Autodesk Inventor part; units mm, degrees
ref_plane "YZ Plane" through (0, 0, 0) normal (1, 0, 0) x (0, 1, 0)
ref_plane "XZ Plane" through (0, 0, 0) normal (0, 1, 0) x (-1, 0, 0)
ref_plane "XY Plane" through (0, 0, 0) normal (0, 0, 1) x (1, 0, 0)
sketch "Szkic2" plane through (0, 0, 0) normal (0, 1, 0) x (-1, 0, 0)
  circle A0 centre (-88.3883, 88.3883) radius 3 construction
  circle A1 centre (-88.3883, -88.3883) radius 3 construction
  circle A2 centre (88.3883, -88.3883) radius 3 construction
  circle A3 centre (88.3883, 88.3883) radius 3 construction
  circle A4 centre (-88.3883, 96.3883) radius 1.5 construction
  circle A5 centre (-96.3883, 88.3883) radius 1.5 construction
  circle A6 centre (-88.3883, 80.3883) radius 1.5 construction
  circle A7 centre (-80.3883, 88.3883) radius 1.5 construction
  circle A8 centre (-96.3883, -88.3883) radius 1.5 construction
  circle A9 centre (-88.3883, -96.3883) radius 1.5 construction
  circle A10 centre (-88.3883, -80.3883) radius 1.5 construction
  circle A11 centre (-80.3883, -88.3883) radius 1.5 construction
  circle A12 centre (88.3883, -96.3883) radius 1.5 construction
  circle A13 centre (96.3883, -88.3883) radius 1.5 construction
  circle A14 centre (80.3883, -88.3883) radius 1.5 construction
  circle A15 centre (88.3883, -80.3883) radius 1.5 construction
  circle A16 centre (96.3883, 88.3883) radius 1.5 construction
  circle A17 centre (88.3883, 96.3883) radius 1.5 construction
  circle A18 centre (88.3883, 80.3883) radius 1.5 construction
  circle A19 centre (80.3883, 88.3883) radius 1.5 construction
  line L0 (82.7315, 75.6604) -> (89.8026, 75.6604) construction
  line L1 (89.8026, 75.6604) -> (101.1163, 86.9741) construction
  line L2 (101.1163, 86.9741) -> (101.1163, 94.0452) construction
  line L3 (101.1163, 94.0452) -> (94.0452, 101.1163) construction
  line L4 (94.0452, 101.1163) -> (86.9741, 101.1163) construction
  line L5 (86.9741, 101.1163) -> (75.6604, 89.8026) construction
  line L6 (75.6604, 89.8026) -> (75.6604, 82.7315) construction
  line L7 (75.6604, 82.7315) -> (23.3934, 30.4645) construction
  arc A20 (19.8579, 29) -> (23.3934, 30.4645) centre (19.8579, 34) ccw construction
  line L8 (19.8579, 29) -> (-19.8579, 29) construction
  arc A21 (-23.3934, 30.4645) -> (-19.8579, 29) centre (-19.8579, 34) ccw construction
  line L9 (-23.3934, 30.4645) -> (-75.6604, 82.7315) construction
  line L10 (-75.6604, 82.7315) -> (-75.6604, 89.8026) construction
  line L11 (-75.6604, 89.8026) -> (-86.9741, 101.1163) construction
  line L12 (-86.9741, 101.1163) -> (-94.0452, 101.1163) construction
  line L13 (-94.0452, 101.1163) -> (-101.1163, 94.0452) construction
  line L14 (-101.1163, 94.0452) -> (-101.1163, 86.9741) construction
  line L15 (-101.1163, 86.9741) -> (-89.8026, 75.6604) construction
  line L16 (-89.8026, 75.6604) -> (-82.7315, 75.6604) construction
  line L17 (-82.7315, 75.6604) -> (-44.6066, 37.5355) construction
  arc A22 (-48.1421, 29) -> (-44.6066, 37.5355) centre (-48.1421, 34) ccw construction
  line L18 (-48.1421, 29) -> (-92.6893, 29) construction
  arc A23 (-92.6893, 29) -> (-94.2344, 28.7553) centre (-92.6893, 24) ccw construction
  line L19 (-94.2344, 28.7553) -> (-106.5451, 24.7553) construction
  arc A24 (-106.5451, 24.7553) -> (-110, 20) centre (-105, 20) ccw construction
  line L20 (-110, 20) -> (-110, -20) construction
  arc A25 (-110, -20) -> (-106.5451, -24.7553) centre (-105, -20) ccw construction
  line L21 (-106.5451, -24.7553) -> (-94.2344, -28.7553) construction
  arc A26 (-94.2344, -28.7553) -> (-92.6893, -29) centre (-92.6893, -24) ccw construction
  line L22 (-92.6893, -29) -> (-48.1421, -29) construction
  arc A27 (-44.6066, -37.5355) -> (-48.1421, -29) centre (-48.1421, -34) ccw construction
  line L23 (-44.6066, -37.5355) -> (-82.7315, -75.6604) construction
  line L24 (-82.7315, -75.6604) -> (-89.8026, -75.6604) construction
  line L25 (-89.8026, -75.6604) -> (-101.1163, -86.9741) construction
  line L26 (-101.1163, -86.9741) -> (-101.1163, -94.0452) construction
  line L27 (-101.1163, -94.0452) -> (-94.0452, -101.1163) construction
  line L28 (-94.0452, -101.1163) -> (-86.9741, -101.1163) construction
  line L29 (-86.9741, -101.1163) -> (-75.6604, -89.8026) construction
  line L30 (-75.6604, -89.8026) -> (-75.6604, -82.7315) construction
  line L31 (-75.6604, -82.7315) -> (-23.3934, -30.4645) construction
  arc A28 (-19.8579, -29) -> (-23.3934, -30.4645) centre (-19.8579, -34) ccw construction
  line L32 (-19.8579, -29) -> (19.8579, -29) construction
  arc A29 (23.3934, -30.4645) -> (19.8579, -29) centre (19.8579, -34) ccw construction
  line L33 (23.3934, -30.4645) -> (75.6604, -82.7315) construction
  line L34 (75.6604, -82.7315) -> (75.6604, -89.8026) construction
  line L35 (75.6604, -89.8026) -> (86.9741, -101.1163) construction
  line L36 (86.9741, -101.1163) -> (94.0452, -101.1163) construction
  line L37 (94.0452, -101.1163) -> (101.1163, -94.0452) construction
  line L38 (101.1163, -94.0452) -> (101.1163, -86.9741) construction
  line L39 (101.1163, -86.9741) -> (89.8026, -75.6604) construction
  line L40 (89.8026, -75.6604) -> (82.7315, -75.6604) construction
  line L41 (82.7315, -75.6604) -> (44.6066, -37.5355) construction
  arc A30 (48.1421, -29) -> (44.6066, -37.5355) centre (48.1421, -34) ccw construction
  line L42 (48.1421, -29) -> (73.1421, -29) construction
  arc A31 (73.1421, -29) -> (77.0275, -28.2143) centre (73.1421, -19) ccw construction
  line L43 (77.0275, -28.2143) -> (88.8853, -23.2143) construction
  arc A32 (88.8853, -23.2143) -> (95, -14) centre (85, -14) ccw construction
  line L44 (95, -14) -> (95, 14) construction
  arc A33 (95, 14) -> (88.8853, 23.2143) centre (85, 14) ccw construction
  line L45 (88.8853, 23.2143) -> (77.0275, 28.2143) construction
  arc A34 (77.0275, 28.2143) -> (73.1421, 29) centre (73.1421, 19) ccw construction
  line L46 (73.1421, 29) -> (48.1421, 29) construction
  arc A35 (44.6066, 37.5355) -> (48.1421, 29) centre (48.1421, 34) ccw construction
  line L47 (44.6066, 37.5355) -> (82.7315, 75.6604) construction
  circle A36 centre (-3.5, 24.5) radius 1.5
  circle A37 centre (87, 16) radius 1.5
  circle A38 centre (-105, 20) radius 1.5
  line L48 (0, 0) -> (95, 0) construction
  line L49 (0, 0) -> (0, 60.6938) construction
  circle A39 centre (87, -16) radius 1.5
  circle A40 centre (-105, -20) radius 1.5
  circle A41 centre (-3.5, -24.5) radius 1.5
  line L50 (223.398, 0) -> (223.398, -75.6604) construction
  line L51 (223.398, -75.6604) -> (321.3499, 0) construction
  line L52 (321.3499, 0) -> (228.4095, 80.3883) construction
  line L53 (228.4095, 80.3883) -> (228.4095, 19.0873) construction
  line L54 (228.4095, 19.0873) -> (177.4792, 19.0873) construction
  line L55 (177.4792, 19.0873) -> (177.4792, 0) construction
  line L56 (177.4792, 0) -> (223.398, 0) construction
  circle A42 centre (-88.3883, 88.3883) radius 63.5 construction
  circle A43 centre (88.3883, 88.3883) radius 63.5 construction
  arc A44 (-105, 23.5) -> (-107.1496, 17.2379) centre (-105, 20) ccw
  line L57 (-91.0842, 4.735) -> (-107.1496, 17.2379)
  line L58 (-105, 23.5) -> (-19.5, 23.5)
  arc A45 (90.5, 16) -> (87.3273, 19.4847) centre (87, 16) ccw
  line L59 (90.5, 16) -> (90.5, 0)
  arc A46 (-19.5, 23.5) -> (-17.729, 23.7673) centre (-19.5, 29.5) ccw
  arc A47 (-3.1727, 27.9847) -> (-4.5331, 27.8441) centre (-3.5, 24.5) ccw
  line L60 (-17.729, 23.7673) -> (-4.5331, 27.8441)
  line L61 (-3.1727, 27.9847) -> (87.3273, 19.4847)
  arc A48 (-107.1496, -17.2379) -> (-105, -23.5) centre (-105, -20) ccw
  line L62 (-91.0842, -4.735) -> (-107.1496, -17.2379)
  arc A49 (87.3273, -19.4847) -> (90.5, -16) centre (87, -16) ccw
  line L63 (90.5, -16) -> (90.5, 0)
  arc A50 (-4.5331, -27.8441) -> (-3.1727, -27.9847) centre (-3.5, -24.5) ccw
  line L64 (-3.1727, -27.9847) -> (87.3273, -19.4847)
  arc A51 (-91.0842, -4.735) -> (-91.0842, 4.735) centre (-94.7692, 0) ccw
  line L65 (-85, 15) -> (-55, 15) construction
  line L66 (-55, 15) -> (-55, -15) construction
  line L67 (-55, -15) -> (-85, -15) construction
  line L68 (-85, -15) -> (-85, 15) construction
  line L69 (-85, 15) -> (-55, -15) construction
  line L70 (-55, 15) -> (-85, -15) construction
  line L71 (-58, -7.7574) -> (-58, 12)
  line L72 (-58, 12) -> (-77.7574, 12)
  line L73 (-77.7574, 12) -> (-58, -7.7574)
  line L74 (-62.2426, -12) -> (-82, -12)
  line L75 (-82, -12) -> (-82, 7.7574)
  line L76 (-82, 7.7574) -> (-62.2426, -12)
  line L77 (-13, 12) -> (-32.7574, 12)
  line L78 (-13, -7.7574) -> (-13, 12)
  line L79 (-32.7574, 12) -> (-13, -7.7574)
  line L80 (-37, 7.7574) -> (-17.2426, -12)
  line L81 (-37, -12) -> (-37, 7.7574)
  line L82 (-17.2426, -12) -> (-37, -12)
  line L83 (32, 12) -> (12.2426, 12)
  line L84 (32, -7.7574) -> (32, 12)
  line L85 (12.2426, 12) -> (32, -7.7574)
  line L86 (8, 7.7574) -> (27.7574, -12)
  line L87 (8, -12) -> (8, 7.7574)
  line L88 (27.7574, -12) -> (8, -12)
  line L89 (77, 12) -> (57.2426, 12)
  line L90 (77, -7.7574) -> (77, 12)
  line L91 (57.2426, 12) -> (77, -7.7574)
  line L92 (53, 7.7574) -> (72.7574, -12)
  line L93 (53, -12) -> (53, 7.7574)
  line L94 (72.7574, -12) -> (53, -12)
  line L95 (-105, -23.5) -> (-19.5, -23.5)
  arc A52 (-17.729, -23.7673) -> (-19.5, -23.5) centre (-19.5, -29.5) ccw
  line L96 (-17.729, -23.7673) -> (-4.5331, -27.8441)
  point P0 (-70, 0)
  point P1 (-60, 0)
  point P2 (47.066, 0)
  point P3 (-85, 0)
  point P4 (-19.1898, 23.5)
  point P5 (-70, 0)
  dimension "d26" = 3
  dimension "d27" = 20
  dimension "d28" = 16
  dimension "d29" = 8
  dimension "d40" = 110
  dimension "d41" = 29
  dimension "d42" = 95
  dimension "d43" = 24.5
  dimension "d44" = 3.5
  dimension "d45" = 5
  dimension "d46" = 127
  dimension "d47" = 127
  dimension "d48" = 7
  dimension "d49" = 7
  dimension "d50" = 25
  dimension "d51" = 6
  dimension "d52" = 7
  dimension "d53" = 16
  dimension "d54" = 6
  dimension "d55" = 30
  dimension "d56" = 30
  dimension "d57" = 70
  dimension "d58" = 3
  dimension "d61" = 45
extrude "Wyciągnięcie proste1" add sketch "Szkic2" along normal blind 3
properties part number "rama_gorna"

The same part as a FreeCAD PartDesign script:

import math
import FreeCAD as App
import Part
import Sketcher


def add_polygon(sketch, points):
    """Adds a closed chain of lines whose ends are joined by coincident constraints."""
    first, n = sketch.GeometryCount, len(points)
    for a, b in zip(points, points[1:] + points[:1]):
        sketch.addGeometry(Part.LineSegment(App.Vector(*a, 0), App.Vector(*b, 0)), False)
    for i in range(n):
        sketch.addConstraint(Sketcher.Constraint("Coincident", first + i, 2, first + (i + 1) % n, 1))

doc = App.newDocument("Part")
body = doc.addObject("PartDesign::Body", "Body")

# Sketch on XZ plane
sketch1 = body.newObject("Sketcher::SketchObject", "Sketch")
sketch1.AttachmentSupport = (doc.getObject("XZ_Plane"), [""])
sketch1.MapMode = "FlatFace"
sketch1.addGeometry(Part.LineSegment(App.Vector(19.5, 23.5, 0), App.Vector(105, 23.5, 0)), False)  # 0
sketch1.addGeometry(Part.ArcOfCircle(Part.Circle(App.Vector(105, 20, 0), App.Vector(0, 0, 1), 3.5), math.radians(-52.108218), math.radians(90)), False)  # 1
sketch1.addGeometry(Part.LineSegment(App.Vector(107.1496, 17.2379, 0), App.Vector(91.0842, 4.735, 0)), False)  # 2
sketch1.addGeometry(Part.ArcOfCircle(Part.Circle(App.Vector(94.7692, 0, 0), App.Vector(0, 0, 1), 5.999954), math.radians(127.891734), math.radians(232.108266)), False)  # 3
sketch1.addGeometry(Part.LineSegment(App.Vector(91.0842, -4.735, 0), App.Vector(107.1496, -17.2379, 0)), False)  # 4
sketch1.addGeometry(Part.ArcOfCircle(Part.Circle(App.Vector(105, -20, 0), App.Vector(0, 0, 1), 3.499997), math.radians(-90), math.radians(52.108218)), False)  # 5
sketch1.addGeometry(Part.LineSegment(App.Vector(105, -23.5, 0), App.Vector(19.5, -23.5, 0)), False)  # 6
sketch1.addGeometry(Part.ArcOfCircle(Part.Circle(App.Vector(19.499759, -29.498945, 0), App.Vector(0, 0, 1), 5.998945), math.radians(89.997696), math.radians(107.168234)), False)  # 7
sketch1.addGeometry(Part.LineSegment(App.Vector(17.729, -23.7673, 0), App.Vector(4.5331, -27.8441, 0)), False)  # 8
sketch1.addGeometry(Part.ArcOfCircle(Part.Circle(App.Vector(3.5, -24.5, 0), App.Vector(0, 0, 1), 3.500043), math.radians(-95.365757), math.radians(-72.8324)), False)  # 9
sketch1.addGeometry(Part.LineSegment(App.Vector(3.1727, -27.9847, 0), App.Vector(-87.3273, -19.4847, 0)), False)  # 10
sketch1.addGeometry(Part.ArcOfCircle(Part.Circle(App.Vector(-87, -16, 0), App.Vector(0, 0, 1), 3.500037), math.radians(180), math.radians(264.634243)), False)  # 11
sketch1.addGeometry(Part.LineSegment(App.Vector(-90.5, -16, 0), App.Vector(-90.5, 16, 0)), False)  # 12
sketch1.addGeometry(Part.ArcOfCircle(Part.Circle(App.Vector(-87, 16, 0), App.Vector(0, 0, 1), 3.5), math.radians(95.365757), math.radians(180)), False)  # 13
sketch1.addGeometry(Part.LineSegment(App.Vector(-87.3273, 19.4847, 0), App.Vector(3.1727, 27.9847, 0)), False)  # 14
sketch1.addGeometry(Part.ArcOfCircle(Part.Circle(App.Vector(3.5, 24.5, 0), App.Vector(0, 0, 1), 3.500037), math.radians(72.8324), math.radians(95.365757)), False)  # 15
sketch1.addGeometry(Part.LineSegment(App.Vector(4.5331, 27.8441, 0), App.Vector(17.729, 23.7673, 0)), False)  # 16
sketch1.addGeometry(Part.ArcOfCircle(Part.Circle(App.Vector(19.500081, 29.50108, 0), App.Vector(0, 0, 1), 6.00108), math.radians(-107.165156), math.radians(-90.000774)), False)  # 17
sketch1.addGeometry(Part.Circle(App.Vector(105, -20, 0), App.Vector(0, 0, 1), 1.5), False)  # 18
add_polygon(sketch1, [(82, 7.7574), (62.2426, -12), (82, -12)])  # lines 19-21
add_polygon(sketch1, [(37, -12), (37, 7.7574), (17.2426, -12)])  # lines 22-24
sketch1.addGeometry(Part.Circle(App.Vector(3.5, -24.5, 0), App.Vector(0, 0, 1), 1.5), False)  # 25
sketch1.addGeometry(Part.Circle(App.Vector(-87, -16, 0), App.Vector(0, 0, 1), 1.5), False)  # 26
add_polygon(sketch1, [(-8, -12), (-8, 7.7574), (-27.7574, -12)])  # lines 27-29
add_polygon(sketch1, [(-53, -12), (-53, 7.7574), (-72.7574, -12)])  # lines 30-32
add_polygon(sketch1, [(58, 12), (58, -7.7574), (77.7574, 12)])  # lines 33-35
add_polygon(sketch1, [(32.7574, 12), (13, 12), (13, -7.7574)])  # lines 36-38
sketch1.addGeometry(Part.Circle(App.Vector(105, 20, 0), App.Vector(0, 0, 1), 1.5), False)  # 39
add_polygon(sketch1, [(-12.2426, 12), (-32, 12), (-32, -7.7574)])  # lines 40-42
add_polygon(sketch1, [(-57.2426, 12), (-77, 12), (-77, -7.7574)])  # lines 43-45
sketch1.addGeometry(Part.Circle(App.Vector(3.5, 24.5, 0), App.Vector(0, 0, 1), 1.5), False)  # 46
sketch1.addGeometry(Part.Circle(App.Vector(-87, 16, 0), App.Vector(0, 0, 1), 1.5), False)  # 47
sketch1.addConstraint(Sketcher.Constraint("Coincident", 0, 2, 1, 2))
sketch1.addConstraint(Sketcher.Constraint("Coincident", 1, 1, 2, 1))
sketch1.addConstraint(Sketcher.Constraint("Coincident", 2, 2, 3, 1))
sketch1.addConstraint(Sketcher.Constraint("Coincident", 3, 2, 4, 1))
sketch1.addConstraint(Sketcher.Constraint("Coincident", 4, 2, 5, 2))
sketch1.addConstraint(Sketcher.Constraint("Coincident", 5, 1, 6, 1))
sketch1.addConstraint(Sketcher.Constraint("Coincident", 6, 2, 7, 1))
sketch1.addConstraint(Sketcher.Constraint("Coincident", 7, 2, 8, 1))
sketch1.addConstraint(Sketcher.Constraint("Coincident", 8, 2, 9, 2))
sketch1.addConstraint(Sketcher.Constraint("Coincident", 9, 1, 10, 1))
sketch1.addConstraint(Sketcher.Constraint("Coincident", 10, 2, 11, 2))
sketch1.addConstraint(Sketcher.Constraint("Coincident", 11, 1, 12, 1))
sketch1.addConstraint(Sketcher.Constraint("Coincident", 12, 2, 13, 2))
sketch1.addConstraint(Sketcher.Constraint("Coincident", 13, 1, 14, 1))
sketch1.addConstraint(Sketcher.Constraint("Coincident", 14, 2, 15, 2))
sketch1.addConstraint(Sketcher.Constraint("Coincident", 15, 1, 16, 1))
sketch1.addConstraint(Sketcher.Constraint("Coincident", 16, 2, 17, 1))
sketch1.addConstraint(Sketcher.Constraint("Coincident", 17, 2, 0, 1))
sketch1.addConstraint(Sketcher.Constraint("Horizontal", 0))
sketch1.addConstraint(Sketcher.Constraint("Horizontal", 6))
sketch1.addConstraint(Sketcher.Constraint("Vertical", 12))
sketch1.addConstraint(Sketcher.Constraint("Horizontal", 20))
sketch1.addConstraint(Sketcher.Constraint("Vertical", 21))
sketch1.addConstraint(Sketcher.Constraint("Vertical", 22))
sketch1.addConstraint(Sketcher.Constraint("Horizontal", 24))
sketch1.addConstraint(Sketcher.Constraint("Vertical", 27))
sketch1.addConstraint(Sketcher.Constraint("Horizontal", 29))
sketch1.addConstraint(Sketcher.Constraint("Vertical", 30))
sketch1.addConstraint(Sketcher.Constraint("Horizontal", 32))
sketch1.addConstraint(Sketcher.Constraint("Vertical", 33))
sketch1.addConstraint(Sketcher.Constraint("Horizontal", 35))
sketch1.addConstraint(Sketcher.Constraint("Horizontal", 36))
sketch1.addConstraint(Sketcher.Constraint("Vertical", 37))
sketch1.addConstraint(Sketcher.Constraint("Horizontal", 40))
sketch1.addConstraint(Sketcher.Constraint("Vertical", 41))
sketch1.addConstraint(Sketcher.Constraint("Horizontal", 43))
sketch1.addConstraint(Sketcher.Constraint("Vertical", 44))
sketch1.addConstraint(Sketcher.Constraint("Coincident", 18, 3, 5, 3))
sketch1.addConstraint(Sketcher.Constraint("Coincident", 25, 3, 9, 3))
sketch1.addConstraint(Sketcher.Constraint("Coincident", 26, 3, 11, 3))
sketch1.addConstraint(Sketcher.Constraint("Coincident", 39, 3, 1, 3))
sketch1.addConstraint(Sketcher.Constraint("Coincident", 46, 3, 15, 3))
sketch1.addConstraint(Sketcher.Constraint("Coincident", 47, 3, 13, 3))
sketch1.addConstraint(Sketcher.Constraint("PointOnObject", 3, 3, -1))
sketch1.addConstraint(Sketcher.Constraint("Diameter", 18, 3.0))
sketch1.addConstraint(Sketcher.Constraint("Diameter", 25, 3.0))
sketch1.addConstraint(Sketcher.Constraint("Diameter", 26, 3.0))
sketch1.addConstraint(Sketcher.Constraint("Diameter", 39, 3.0))
sketch1.addConstraint(Sketcher.Constraint("Diameter", 46, 3.0))
sketch1.addConstraint(Sketcher.Constraint("Diameter", 47, 3.0))
sketch1.addConstraint(Sketcher.Constraint("Radius", 3, 6.0))
sketch1.addConstraint(Sketcher.Constraint("Radius", 1, 3.5))
sketch1.addConstraint(Sketcher.Constraint("Radius", 5, 3.5))
sketch1.addConstraint(Sketcher.Constraint("Radius", 9, 3.5))
sketch1.addConstraint(Sketcher.Constraint("Radius", 11, 3.5))
sketch1.addConstraint(Sketcher.Constraint("Radius", 13, 3.5))
sketch1.addConstraint(Sketcher.Constraint("Radius", 15, 3.5))
sketch1.addConstraint(Sketcher.Constraint("DistanceY", -1, 1, 1, 3, 20.0))
sketch1.addConstraint(Sketcher.Constraint("DistanceY", 5, 3, -1, 1, 20.0))
sketch1.addConstraint(Sketcher.Constraint("DistanceY", 11, 3, -1, 1, 16.0))
sketch1.addConstraint(Sketcher.Constraint("DistanceY", -1, 1, 13, 3, 16.0))
sketch1.addConstraint(Sketcher.Constraint("DistanceY", 11, 1, -1, 1, 16.0))
sketch1.addConstraint(Sketcher.Constraint("DistanceY", -1, 1, 12, 2, 16.0))
sketch1.addConstraint(Sketcher.Constraint("DistanceX", 27, 2, -1, 1, 8.0))
sketch1.addConstraint(Sketcher.Constraint("DistanceX", 15, 3, 17, 3, 16.0))
sketch1.addConstraint(Sketcher.Constraint("DistanceX", 9, 3, 17, 3, 16.0))
sketch1.addConstraint(Sketcher.Constraint("DistanceX", 9, 3, 6, 2, 16.0))
sketch1.addConstraint(Sketcher.Constraint("DistanceX", 15, 3, 17, 2, 16.0))
sketch1.addConstraint(Sketcher.Constraint("DistanceY", 5, 3, 19, 2, 8.0))
sketch1.addConstraint(Sketcher.Constraint("DistanceX", 13, 3, 43, 2, 10.0))
sketch1.addConstraint(Sketcher.Constraint("DistanceX", -1, 1, 9, 3, 3.5))
sketch1.addConstraint(Sketcher.Constraint("DistanceY", 9, 3, -1, 1, 24.5))
sketch1.addConstraint(Sketcher.Constraint("DistanceY", -1, 1, 15, 3, 24.5))
sketch1.addConstraint(Sketcher.Constraint("DistanceX", 0, 1, 0, 2, 85.5))
sketch1.addConstraint(Sketcher.Constraint("DistanceX", 6, 2, 6, 1, 85.5))
sketch1.addConstraint(Sketcher.Constraint("DistanceX", -1, 1, 1, 3, 105.0))
sketch1.addConstraint(Sketcher.Constraint("DistanceX", -1, 1, 5, 3, 105.0))
sketch1.addConstraint(Sketcher.Constraint("DistanceX", 11, 3, -1, 1, 87.0))
sketch1.addConstraint(Sketcher.Constraint("DistanceX", -1, 1, 20, 2, 82.0))
sketch1.addConstraint(Sketcher.Constraint("DistanceX", -1, 1, 22, 2, 37.0))
sketch1.addConstraint(Sketcher.Constraint("DistanceY", 23, 2, -1, 1, 12.0))
sketch1.addConstraint(Sketcher.Constraint("DistanceY", 28, 2, -1, 1, 12.0))
sketch1.addConstraint(Sketcher.Constraint("DistanceX", 30, 2, -1, 1, 53.0))
sketch1.addConstraint(Sketcher.Constraint("DistanceY", 31, 2, -1, 1, 12.0))
sketch1.addConstraint(Sketcher.Constraint("DistanceX", -1, 1, 33, 2, 58.0))
sketch1.addConstraint(Sketcher.Constraint("DistanceY", -1, 1, 34, 2, 12.0))
sketch1.addConstraint(Sketcher.Constraint("DistanceX", -1, 1, 36, 2, 13.0))
sketch1.addConstraint(Sketcher.Constraint("DistanceY", -1, 1, 36, 2, 12.0))
sketch1.addConstraint(Sketcher.Constraint("DistanceX", 40, 2, -1, 1, 32.0))
sketch1.addConstraint(Sketcher.Constraint("DistanceY", -1, 1, 40, 2, 12.0))
sketch1.addConstraint(Sketcher.Constraint("DistanceY", -1, 1, 43, 2, 12.0))
sketch1.addConstraint(Sketcher.Constraint("Radius", 7, 5.999))
sketch1.addConstraint(Sketcher.Constraint("Radius", 17, 6.001))
sketch1.addConstraint(Sketcher.Constraint("DistanceX", 9, 3, 7, 3, 15.9998))
sketch1.addConstraint(Sketcher.Constraint("DistanceX", 10, 2, 9, 1, 90.5))
sketch1.addConstraint(Sketcher.Constraint("DistanceY", 3, 2, 2, 2, 9.47))
sketch1.addConstraint(Sketcher.Constraint("DistanceY", 22, 2, 16, 2, 16.01))
sketch1.addConstraint(Sketcher.Constraint("DistanceY", 27, 2, 16, 2, 16.01))
sketch1.addConstraint(Sketcher.Constraint("DistanceX", 28, 2, 9, 1, 30.93))
sketch1.addConstraint(Sketcher.Constraint("DistanceX", 10, 2, 31, 2, 14.57))
sketch1.addConstraint(Sketcher.Constraint("DistanceY", 7, 2, 37, 2, 16.01))
sketch1.addConstraint(Sketcher.Constraint("DistanceX", 20, 1, 20, 2, 19.7574))
sketch1.addConstraint(Sketcher.Constraint("DistanceX", 24, 1, 24, 2, 19.7574))
sketch1.addConstraint(Sketcher.Constraint("DistanceX", 29, 1, 29, 2, 19.7574))
sketch1.addConstraint(Sketcher.Constraint("DistanceX", 35, 2, 35, 1, 19.7574))
sketch1.addConstraint(Sketcher.Constraint("DistanceX", 36, 2, 36, 1, 19.7574))
sketch1.addConstraint(Sketcher.Constraint("DistanceX", 40, 2, 40, 1, 19.7574))
sketch1.addConstraint(Sketcher.Constraint("DistanceX", 43, 2, 43, 1, 19.7574))
sketch1.addConstraint(Sketcher.Constraint("DistanceY", 21, 1, 21, 2, 19.7574))
sketch1.addConstraint(Sketcher.Constraint("DistanceY", 22, 1, 22, 2, 19.7574))
sketch1.addConstraint(Sketcher.Constraint("DistanceY", 30, 1, 30, 2, 19.7574))
sketch1.addConstraint(Sketcher.Constraint("DistanceY", 33, 2, 33, 1, 19.7574))
sketch1.addConstraint(Sketcher.Constraint("DistanceY", 37, 2, 37, 1, 19.7574))
sketch1.addConstraint(Sketcher.Constraint("DistanceY", 41, 2, 41, 1, 19.7574))
sketch1.addConstraint(Sketcher.Constraint("DistanceY", 44, 2, 44, 1, 19.7574))
sketch1.addConstraint(Sketcher.Constraint("DistanceY", -1, 1, 1, 1, 17.238))
sketch1.addConstraint(Sketcher.Constraint("DistanceY", -1, 1, 2, 2, 4.735))
sketch1.addConstraint(Sketcher.Constraint("DistanceY", 4, 2, -1, 1, 17.238))
sketch1.addConstraint(Sketcher.Constraint("DistanceX", -1, 1, 8, 2, 4.533))
sketch1.addConstraint(Sketcher.Constraint("DistanceX", -1, 1, 15, 1, 4.533))
sketch1.addConstraint(Sketcher.Constraint("DistanceX", 17, 3, 3, 3, 75.269))
sketch1.addConstraint(Sketcher.Constraint("Distance", 14, 90.8983))
sketch1.addConstraint(Sketcher.Constraint("DistanceX", 13, 1, -1, 1, 87.3273))
pad1 = body.newObject("PartDesign::Pad", "Pad")
pad1.Profile = sketch1
pad1.Length = 3
pad1.Reversed = True

doc.recompute()
